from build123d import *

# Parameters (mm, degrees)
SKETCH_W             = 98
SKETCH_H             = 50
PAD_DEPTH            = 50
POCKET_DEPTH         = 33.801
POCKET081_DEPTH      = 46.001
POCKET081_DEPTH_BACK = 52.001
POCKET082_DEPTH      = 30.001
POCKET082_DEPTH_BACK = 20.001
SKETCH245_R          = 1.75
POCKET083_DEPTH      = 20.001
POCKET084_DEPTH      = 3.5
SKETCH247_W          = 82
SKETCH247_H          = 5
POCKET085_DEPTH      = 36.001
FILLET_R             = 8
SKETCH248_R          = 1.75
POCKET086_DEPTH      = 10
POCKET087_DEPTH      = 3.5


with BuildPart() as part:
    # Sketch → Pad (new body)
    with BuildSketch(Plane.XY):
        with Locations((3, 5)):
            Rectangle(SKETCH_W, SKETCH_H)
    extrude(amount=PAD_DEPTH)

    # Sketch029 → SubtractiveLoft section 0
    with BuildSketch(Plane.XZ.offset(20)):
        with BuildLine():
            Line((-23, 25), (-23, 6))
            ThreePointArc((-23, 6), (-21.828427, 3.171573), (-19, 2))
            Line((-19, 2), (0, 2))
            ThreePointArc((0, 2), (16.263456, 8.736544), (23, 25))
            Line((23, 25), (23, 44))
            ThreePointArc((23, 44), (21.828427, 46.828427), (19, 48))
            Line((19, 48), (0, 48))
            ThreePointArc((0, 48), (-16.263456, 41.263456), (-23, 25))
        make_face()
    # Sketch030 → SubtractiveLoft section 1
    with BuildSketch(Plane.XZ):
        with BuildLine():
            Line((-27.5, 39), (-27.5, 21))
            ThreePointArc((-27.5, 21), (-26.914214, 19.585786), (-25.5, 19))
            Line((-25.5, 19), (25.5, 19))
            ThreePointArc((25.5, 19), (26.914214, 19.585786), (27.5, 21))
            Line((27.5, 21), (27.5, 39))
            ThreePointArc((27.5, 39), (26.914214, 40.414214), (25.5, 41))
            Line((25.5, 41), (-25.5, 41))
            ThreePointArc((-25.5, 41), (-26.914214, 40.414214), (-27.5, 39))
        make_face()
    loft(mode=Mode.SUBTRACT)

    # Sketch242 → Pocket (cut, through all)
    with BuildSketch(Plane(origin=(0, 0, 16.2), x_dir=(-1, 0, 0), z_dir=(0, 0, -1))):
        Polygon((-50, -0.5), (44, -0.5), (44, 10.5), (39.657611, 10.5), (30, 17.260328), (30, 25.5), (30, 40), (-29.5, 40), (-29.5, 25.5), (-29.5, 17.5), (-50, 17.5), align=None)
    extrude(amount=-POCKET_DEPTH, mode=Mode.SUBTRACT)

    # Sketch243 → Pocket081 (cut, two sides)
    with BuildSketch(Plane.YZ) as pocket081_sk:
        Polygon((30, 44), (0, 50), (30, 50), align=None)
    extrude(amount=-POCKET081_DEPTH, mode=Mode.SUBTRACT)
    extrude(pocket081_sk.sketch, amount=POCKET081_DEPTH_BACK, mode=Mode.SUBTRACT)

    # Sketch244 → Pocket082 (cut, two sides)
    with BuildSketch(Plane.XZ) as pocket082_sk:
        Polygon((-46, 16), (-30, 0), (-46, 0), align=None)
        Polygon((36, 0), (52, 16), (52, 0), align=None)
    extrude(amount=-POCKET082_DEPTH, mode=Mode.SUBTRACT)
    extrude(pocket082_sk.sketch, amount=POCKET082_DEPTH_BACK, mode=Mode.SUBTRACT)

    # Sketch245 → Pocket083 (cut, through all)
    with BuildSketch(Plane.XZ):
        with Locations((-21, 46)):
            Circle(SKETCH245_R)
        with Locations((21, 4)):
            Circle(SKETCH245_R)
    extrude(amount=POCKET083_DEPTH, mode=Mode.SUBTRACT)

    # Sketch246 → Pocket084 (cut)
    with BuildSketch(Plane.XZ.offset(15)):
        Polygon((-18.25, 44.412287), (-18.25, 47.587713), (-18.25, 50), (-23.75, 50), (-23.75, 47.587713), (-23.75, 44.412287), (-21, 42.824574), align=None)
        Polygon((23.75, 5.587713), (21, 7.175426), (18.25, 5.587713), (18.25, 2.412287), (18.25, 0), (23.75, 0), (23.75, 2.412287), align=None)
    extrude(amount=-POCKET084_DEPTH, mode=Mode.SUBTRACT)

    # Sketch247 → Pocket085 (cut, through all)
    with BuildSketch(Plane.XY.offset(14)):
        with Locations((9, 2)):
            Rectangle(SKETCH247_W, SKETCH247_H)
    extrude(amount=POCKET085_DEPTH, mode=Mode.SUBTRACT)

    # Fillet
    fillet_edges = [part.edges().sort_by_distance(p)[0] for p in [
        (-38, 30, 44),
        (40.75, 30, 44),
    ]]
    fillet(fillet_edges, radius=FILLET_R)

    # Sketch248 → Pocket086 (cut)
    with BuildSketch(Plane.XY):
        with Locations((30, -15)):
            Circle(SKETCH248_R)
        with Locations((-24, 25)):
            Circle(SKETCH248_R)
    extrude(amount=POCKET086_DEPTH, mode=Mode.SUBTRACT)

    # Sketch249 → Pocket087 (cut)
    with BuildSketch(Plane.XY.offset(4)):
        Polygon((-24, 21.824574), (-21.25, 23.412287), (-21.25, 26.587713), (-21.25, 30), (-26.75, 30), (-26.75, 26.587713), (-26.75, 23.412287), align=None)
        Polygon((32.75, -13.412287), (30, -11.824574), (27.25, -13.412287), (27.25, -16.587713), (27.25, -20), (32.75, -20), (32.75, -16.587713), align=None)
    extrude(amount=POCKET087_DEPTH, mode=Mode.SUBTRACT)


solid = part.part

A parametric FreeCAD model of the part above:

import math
import FreeCAD as App
import Part
import Sketcher
from FreeCAD import Vector
Q = App.Units.Quantity


def edges_at(feature, points):
    """Names of the edges that pass closest to the given points."""
    edges = feature.Shape.Edges
    near = lambda p: min(range(len(edges)), key=lambda i: edges[i].distToShape(Part.Vertex(*p))[0])
    return sorted({f"Edge{near(p) + 1}" for p in points})


def add_polygon(sketch, points):
    """Adds a closed chain of lines whose ends are joined by coincident constraints."""
    first, n = sketch.GeometryCount, len(points)
    for a, b in zip(points, points[1:] + points[:1]):
        sketch.addGeometry(Part.LineSegment(App.Vector(*a, 0), App.Vector(*b, 0)), False)
    for i in range(n):
        sketch.addConstraint(Sketcher.Constraint("Coincident", first + i, 2, first + (i + 1) % n, 1))

doc = App.newDocument("Part")
body = doc.addObject("PartDesign::Body", "Body")

# Sketch on XY plane
sketch1 = body.newObject("Sketcher::SketchObject", "Sketch")
sketch1.AttachmentSupport = (doc.getObject("XY_Plane"), [""])
sketch1.MapMode = "FlatFace"
add_polygon(sketch1, [(-46, 30), (-46, -20), (52, -20), (52, 30)])  # lines 0-3
sketch1.addConstraint(Sketcher.Constraint("Vertical", 0))
sketch1.addConstraint(Sketcher.Constraint("Horizontal", 1))
sketch1.addConstraint(Sketcher.Constraint("Vertical", 2))
sketch1.addConstraint(Sketcher.Constraint("Horizontal", 3))
sketch1.addConstraint(Sketcher.Constraint("DistanceX", 1, 1, 1, 2, 98.0))
sketch1.addConstraint(Sketcher.Constraint("DistanceY", 0, 2, 0, 1, 50.0))
sketch1.addConstraint(Sketcher.Constraint("DistanceX", 0, 2, -1, 1, 46.0))
sketch1.addConstraint(Sketcher.Constraint("DistanceY", 0, 2, -1, 1, 20.0))
pad1 = body.newObject("PartDesign::Pad", "Pad")
pad1.Profile = sketch1
pad1.Length = 50

# Sketch on XZ plane
sketch2 = body.newObject("Sketcher::SketchObject", "Sketch001")
sketch2.AttachmentSupport = (doc.getObject("XZ_Plane"), [""])
sketch2.MapMode = "FlatFace"
sketch2.AttachmentOffset = App.Placement(Vector(0, 0, 20), App.Rotation())
sketch2.addGeometry(Part.LineSegment(Vector(-23, 25, 0), Vector(-23, 6, 0)), False)
sketch2.addGeometry(Part.ArcOfCircle(Part.Circle(Vector(-19, 6, 0), Vector(0, 0, 1), 4), math.radians(-180), math.radians(-90)), False)
sketch2.addGeometry(Part.LineSegment(Vector(-19, 2, 0), Vector(0, 2, 0)), False)
sketch2.addGeometry(Part.ArcOfCircle(Part.Circle(Vector(0, 25, 0), Vector(0, 0, 1), 23), math.radians(-90), math.radians(0)), False)
sketch2.addGeometry(Part.LineSegment(Vector(23, 25, 0), Vector(23, 44, 0)), False)
sketch2.addGeometry(Part.ArcOfCircle(Part.Circle(Vector(19, 44, 0), Vector(0, 0, 1), 4), math.radians(0), math.radians(90)), False)
sketch2.addGeometry(Part.LineSegment(Vector(19, 48, 0), Vector(0, 48, 0)), False)
sketch2.addGeometry(Part.ArcOfCircle(Part.Circle(Vector(0, 25, 0), Vector(0, 0, 1), 23), math.radians(90), math.radians(180)), False)
sketch2.addConstraint(Sketcher.Constraint("Tangent", 0, 2, 1, 1))
sketch2.addConstraint(Sketcher.Constraint("Tangent", 1, 2, 2, 1))
sketch2.addConstraint(Sketcher.Constraint("Tangent", 2, 2, 3, 1))
sketch2.addConstraint(Sketcher.Constraint("Tangent", 3, 2, 4, 1))
sketch2.addConstraint(Sketcher.Constraint("Tangent", 4, 2, 5, 1))
sketch2.addConstraint(Sketcher.Constraint("Tangent", 5, 2, 6, 1))
sketch2.addConstraint(Sketcher.Constraint("Tangent", 6, 2, 7, 1))
sketch2.addConstraint(Sketcher.Constraint("Tangent", 7, 2, 0, 1))
sketch2.addConstraint(Sketcher.Constraint("Vertical", 0))
sketch2.addConstraint(Sketcher.Constraint("Horizontal", 2))
sketch2.addConstraint(Sketcher.Constraint("Vertical", 4))
sketch2.addConstraint(Sketcher.Constraint("Horizontal", 6))
sketch2.addConstraint(Sketcher.Constraint("Coincident", 7, 3, 3, 3))
sketch2.addConstraint(Sketcher.Constraint("Equal", 1, 5))
sketch2.addConstraint(Sketcher.Constraint("Equal", 3, 7))
sketch2.addConstraint(Sketcher.Constraint("PointOnObject", 3, 3, -2))
sketch2.addConstraint(Sketcher.Constraint("Radius", 1, 4.0))
sketch2.addConstraint(Sketcher.Constraint("Radius", 3, 23.0))
sketch2.addConstraint(Sketcher.Constraint("DistanceY", -1, 1, 1, 3, 6.0))

# Sketch on XZ plane
sketch3 = body.newObject("Sketcher::SketchObject", "Sketch002")
sketch3.AttachmentSupport = (doc.getObject("XZ_Plane"), [""])
sketch3.MapMode = "FlatFace"
sketch3.addGeometry(Part.LineSegment(Vector(-27.5, 39, 0), Vector(-27.5, 21, 0)), False)
sketch3.addGeometry(Part.ArcOfCircle(Part.Circle(Vector(-25.5, 21, 0), Vector(0, 0, 1), 2), math.radians(180), math.radians(270)), False)
sketch3.addGeometry(Part.LineSegment(Vector(-25.5, 19, 0), Vector(25.5, 19, 0)), False)
sketch3.addGeometry(Part.ArcOfCircle(Part.Circle(Vector(25.5, 21, 0), Vector(0, 0, 1), 2), math.radians(-90), math.radians(0)), False)
sketch3.addGeometry(Part.LineSegment(Vector(27.5, 21, 0), Vector(27.5, 39, 0)), False)
sketch3.addGeometry(Part.ArcOfCircle(Part.Circle(Vector(25.5, 39, 0), Vector(0, 0, 1), 2), math.radians(0), math.radians(90)), False)
sketch3.addGeometry(Part.LineSegment(Vector(25.5, 41, 0), Vector(-25.5, 41, 0)), False)
sketch3.addGeometry(Part.ArcOfCircle(Part.Circle(Vector(-25.5, 39, 0), Vector(0, 0, 1), 2), math.radians(90), math.radians(180)), False)
sketch3.addConstraint(Sketcher.Constraint("Tangent", 0, 2, 1, 1))
sketch3.addConstraint(Sketcher.Constraint("Tangent", 1, 2, 2, 1))
sketch3.addConstraint(Sketcher.Constraint("Tangent", 2, 2, 3, 1))
sketch3.addConstraint(Sketcher.Constraint("Tangent", 3, 2, 4, 1))
sketch3.addConstraint(Sketcher.Constraint("Tangent", 4, 2, 5, 1))
sketch3.addConstraint(Sketcher.Constraint("Tangent", 5, 2, 6, 1))
sketch3.addConstraint(Sketcher.Constraint("Tangent", 6, 2, 7, 1))
sketch3.addConstraint(Sketcher.Constraint("Tangent", 7, 2, 0, 1))
sketch3.addConstraint(Sketcher.Constraint("Vertical", 0))
sketch3.addConstraint(Sketcher.Constraint("Horizontal", 2))
sketch3.addConstraint(Sketcher.Constraint("Vertical", 4))
sketch3.addConstraint(Sketcher.Constraint("Horizontal", 6))
sketch3.addConstraint(Sketcher.Constraint("Equal", 1, 3))
sketch3.addConstraint(Sketcher.Constraint("Equal", 3, 5))
sketch3.addConstraint(Sketcher.Constraint("Equal", 5, 7))
sketch3.addConstraint(Sketcher.Constraint("Radius", 1, 1.999999))
sketch3.addConstraint(Sketcher.Constraint("DistanceX", 2, 1, 2, 2, 51.0))
sketch3.addConstraint(Sketcher.Constraint("DistanceY", 0, 2, 0, 1, 18.0))
sketch3.addConstraint(Sketcher.Constraint("DistanceY", -1, 1, 1, 3, 20.999999))
sketch3.addConstraint(Sketcher.Constraint("DistanceX", 1, 3, -1, 1, 25.500001))

subtractiveloft = body.newObject("PartDesign::SubtractiveLoft", "SubtractiveLoft")
subtractiveloft.Profile = sketch2
subtractiveloft.Sections = [sketch3]

# Sketch on XY plane
sketch4 = body.newObject("Sketcher::SketchObject", "Sketch003")
sketch4.AttachmentSupport = (doc.getObject("XY_Plane"), [""])
sketch4.MapMode = "FlatFace"
sketch4.AttachmentOffset = App.Placement(Vector(0, 0, 16.2), App.Rotation())
add_polygon(sketch4, [(50, -0.5), (-44, -0.5), (-44, 10.5), (-39.7, 10.5), (-30, 17.3), (-30, 40), (29.5, 40), (29.5, 17.5), (50, 17.5)])  # lines 0-8
sketch4.addConstraint(Sketcher.Constraint("Horizontal", 0))
sketch4.addConstraint(Sketcher.Constraint("Vertical", 1))
sketch4.addConstraint(Sketcher.Constraint("Horizontal", 2))
sketch4.addConstraint(Sketcher.Constraint("Vertical", 4))
sketch4.addConstraint(Sketcher.Constraint("Horizontal", 5))
sketch4.addConstraint(Sketcher.Constraint("Vertical", 6))
sketch4.addConstraint(Sketcher.Constraint("Horizontal", 7))
sketch4.addConstraint(Sketcher.Constraint("Vertical", 8))
sketch4.addConstraint(Sketcher.Constraint("DistanceX", 0, 2, 0, 1, 94.0))
sketch4.addConstraint(Sketcher.Constraint("DistanceY", 1, 1, 1, 2, 11.0))
sketch4.addConstraint(Sketcher.Constraint("DistanceY", 8, 2, 8, 1, 18.0))
sketch4.addConstraint(Sketcher.Constraint("DistanceX", 5, 1, 5, 2, 59.5))
sketch4.addConstraint(Sketcher.Constraint("DistanceX", 7, 1, 7, 2, 20.5))
sketch4.addConstraint(Sketcher.Constraint("DistanceY", 6, 2, 6, 1, 22.5))
sketch4.addConstraint(Sketcher.Constraint("DistanceX", 0, 2, -1, 1, 44.0))
sketch4.addConstraint(Sketcher.Constraint("DistanceY", -1, 1, 4, 2, 40.0))
sketch4.addConstraint(Sketcher.Constraint("DistanceX", 2, 1, 2, 2, 4.342389))
sketch4.addConstraint(Sketcher.Constraint("DistanceY", 4, 1, 4, 2, 22.739672))
pocket1 = body.newObject("PartDesign::Pocket", "Pocket")
pocket1.Profile = sketch4
pocket1.Type = "ThroughAll"
pocket1.Reversed = True

# Sketch on YZ plane
sketch5 = body.newObject("Sketcher::SketchObject", "Sketch004")
sketch5.AttachmentSupport = (doc.getObject("YZ_Plane"), [""])
sketch5.MapMode = "FlatFace"
add_polygon(sketch5, [(0, 50), (30, 44), (30, 50)])  # lines 0-2
sketch5.addConstraint(Sketcher.Constraint("Vertical", 1))
sketch5.addConstraint(Sketcher.Constraint("Horizontal", 2))
sketch5.addConstraint(Sketcher.Constraint("PointOnObject", 2, 2, -2))
sketch5.addConstraint(Sketcher.Constraint("DistanceX", 2, 2, 2, 1, 30.0))
sketch5.addConstraint(Sketcher.Constraint("DistanceY", 1, 1, 1, 2, 6.0))
sketch5.addConstraint(Sketcher.Constraint("DistanceY", -1, 1, 0, 2, 44.0))
pocket2 = body.newObject("PartDesign::Pocket", "Pocket001")
pocket2.Profile = sketch5
pocket2.Type = "ThroughAll"
pocket2.Midplane = True

# Sketch on XZ plane
sketch6 = body.newObject("Sketcher::SketchObject", "Sketch005")
sketch6.AttachmentSupport = (doc.getObject("XZ_Plane"), [""])
sketch6.MapMode = "FlatFace"
add_polygon(sketch6, [(-30, 0), (-46, 16), (-46, 0)])  # lines 0-2
add_polygon(sketch6, [(52, 16), (36, 0), (52, 0)])  # lines 3-5
sketch6.addConstraint(Sketcher.Constraint("Vertical", 1))
sketch6.addConstraint(Sketcher.Constraint("Horizontal", 2))
sketch6.addConstraint(Sketcher.Constraint("Horizontal", 4))
sketch6.addConstraint(Sketcher.Constraint("Vertical", 5))
sketch6.addConstraint(Sketcher.Constraint("PointOnObject", 1, 2, -1))
sketch6.addConstraint(Sketcher.Constraint("PointOnObject", 3, 2, -1))
sketch6.addConstraint(Sketcher.Constraint("Perpendicular", 0, 3))
sketch6.addConstraint(Sketcher.Constraint("Horizontal", 0, 2, 5, 2))
sketch6.addConstraint(Sketcher.Constraint("Equal", 2, 4))
sketch6.addConstraint(Sketcher.Constraint("DistanceX", 2, 1, 2, 2, 16.0))
sketch6.addConstraint(Sketcher.Constraint("DistanceX", 0, 2, -1, 1, 46.0))
sketch6.addConstraint(Sketcher.Constraint("DistanceX", -1, 1, 3, 2, 36.0))
pocket3 = body.newObject("PartDesign::Pocket", "Pocket002")
pocket3.Profile = sketch6
pocket3.Type = "ThroughAll"
pocket3.Midplane = True

# Sketch on XZ plane
sketch7 = body.newObject("Sketcher::SketchObject", "Sketch006")
sketch7.AttachmentSupport = (doc.getObject("XZ_Plane"), [""])
sketch7.MapMode = "FlatFace"
sketch7.addGeometry(Part.Circle(Vector(-21, 46, 0), Vector(0, 0, 1), 1.8), False)
sketch7.addGeometry(Part.Circle(Vector(21, 4, 0), Vector(0, 0, 1), 1.8), False)
sketch7.addConstraint(Sketcher.Constraint("Equal", 0, 1))
sketch7.addConstraint(Sketcher.Constraint("Diameter", 0, 3.5))
sketch7.addConstraint(Sketcher.Constraint("DistanceX", 0, 3, -1, 1, 21.0))
sketch7.addConstraint(Sketcher.Constraint("DistanceY", -1, 1, 0, 3, 46.0))
sketch7.addConstraint(Sketcher.Constraint("DistanceX", -1, 1, 1, 3, 21.0))
sketch7.addConstraint(Sketcher.Constraint("DistanceY", -1, 1, 1, 3, 4.0))
pocket4 = body.newObject("PartDesign::Pocket", "Pocket003")
pocket4.Profile = sketch7
pocket4.Type = "ThroughAll"
pocket4.Reversed = True

# Sketch on XZ plane
sketch8 = body.newObject("Sketcher::SketchObject", "Sketch007")
sketch8.AttachmentSupport = (doc.getObject("XZ_Plane"), [""])
sketch8.MapMode = "FlatFace"
sketch8.AttachmentOffset = App.Placement(Vector(0, 0, 15), App.Rotation())
add_polygon(sketch8, [(-18.2, 44.4), (-18.2, 50), (-23.8, 50), (-23.8, 44.4), (-21, 42.8)])  # lines 0-4
add_polygon(sketch8, [(23.8, 5.6), (21, 7.2), (18.2, 5.6), (18.2, 0), (23.8, 0)])  # lines 5-9
sketch8.addConstraint(Sketcher.Constraint("Vertical", 0))
sketch8.addConstraint(Sketcher.Constraint("Horizontal", 1))
sketch8.addConstraint(Sketcher.Constraint("Vertical", 2))
sketch8.addConstraint(Sketcher.Constraint("Vertical", 7))
sketch8.addConstraint(Sketcher.Constraint("Horizontal", 8))
sketch8.addConstraint(Sketcher.Constraint("Vertical", 9))
sketch8.addConstraint(Sketcher.Constraint("PointOnObject", 7, 2, -1))
sketch8.addConstraint(Sketcher.Constraint("Parallel", 3, 5))
sketch8.addConstraint(Sketcher.Constraint("Parallel", 4, 6))
sketch8.addConstraint(Sketcher.Constraint("Horizontal", 2, 2, 4, 2))
sketch8.addConstraint(Sketcher.Constraint("Horizontal", 6, 2, 9, 2))
sketch8.addConstraint(Sketcher.Constraint("Equal", 1, 8))
sketch8.addConstraint(Sketcher.Constraint("Equal", 2, 7))
sketch8.addConstraint(Sketcher.Constraint("Equal", 3, 4))
sketch8.addConstraint(Sketcher.Constraint("Angle", 3, Q("-29.999996 deg")))
sketch8.addConstraint(Sketcher.Constraint("DistanceX", 1, 2, 1, 1, 5.5))
sketch8.addConstraint(Sketcher.Constraint("DistanceY", -1, 1, 0, 2, 50.0))
sketch8.addConstraint(Sketcher.Constraint("DistanceX", 3, 2, -1, 1, 21.0))
sketch8.addConstraint(Sketcher.Constraint("DistanceX", -1, 1, 5, 2, 21.0))
sketch8.addConstraint(Sketcher.Constraint("DistanceY", 0, 1, 0, 2, 5.587713))
pocket5 = body.newObject("PartDesign::Pocket", "Pocket004")
pocket5.Profile = sketch8
pocket5.Length = 3.5

# Sketch on XY plane
sketch9 = body.newObject("Sketcher::SketchObject", "Sketch008")
sketch9.AttachmentSupport = (doc.getObject("XY_Plane"), [""])
sketch9.MapMode = "FlatFace"
sketch9.AttachmentOffset = App.Placement(Vector(0, 0, 14), App.Rotation())
add_polygon(sketch9, [(-32, 4), (-32, 0), (50, 0), (50, 4)])  # lines 0-3
sketch9.addConstraint(Sketcher.Constraint("Vertical", 0))
sketch9.addConstraint(Sketcher.Constraint("Horizontal", 1))
sketch9.addConstraint(Sketcher.Constraint("Vertical", 2))
sketch9.addConstraint(Sketcher.Constraint("Horizontal", 3))
sketch9.addConstraint(Sketcher.Constraint("DistanceX", 1, 1, 1, 2, 82.0))
sketch9.addConstraint(Sketcher.Constraint("DistanceY", 0, 2, 0, 1, 5.0))
sketch9.addConstraint(Sketcher.Constraint("DistanceX", 0, 2, -1, 1, 32.0))
sketch9.addConstraint(Sketcher.Constraint("DistanceY", 0, 2, -1, 1, 0.5))
pocket6 = body.newObject("PartDesign::Pocket", "Pocket005")
pocket6.Profile = sketch9
pocket6.Type = "ThroughAll"
pocket6.Reversed = True
doc.recompute()

fillet = body.newObject("PartDesign::Fillet", "Fillet")
fillet.Base = (pocket6, edges_at(pocket6, [(-38, 30, 44), (40.75, 30, 44)]))
fillet.Radius = 8

# Sketch on XY plane
sketch10 = body.newObject("Sketcher::SketchObject", "Sketch009")
sketch10.AttachmentSupport = (doc.getObject("XY_Plane"), [""])
sketch10.MapMode = "FlatFace"
sketch10.addGeometry(Part.Circle(Vector(30, -15, 0), Vector(0, 0, 1), 1.8), False)
sketch10.addGeometry(Part.Circle(Vector(-24, 25, 0), Vector(0, 0, 1), 1.8), False)
sketch10.addConstraint(Sketcher.Constraint("Equal", 0, 1))
sketch10.addConstraint(Sketcher.Constraint("Diameter", 0, 3.5))
sketch10.addConstraint(Sketcher.Constraint("DistanceX", -1, 1, 0, 3, 30.0))
sketch10.addConstraint(Sketcher.Constraint("DistanceY", 0, 3, -1, 1, 15.0))
sketch10.addConstraint(Sketcher.Constraint("DistanceX", 1, 3, -1, 1, 24.0))
sketch10.addConstraint(Sketcher.Constraint("DistanceY", -1, 1, 1, 3, 25.0))
pocket7 = body.newObject("PartDesign::Pocket", "Pocket006")
pocket7.Profile = sketch10
pocket7.Length = 10
pocket7.Reversed = True

# Sketch on XY plane
sketch11 = body.newObject("Sketcher::SketchObject", "Sketch010")
sketch11.AttachmentSupport = (doc.getObject("XY_Plane"), [""])
sketch11.MapMode = "FlatFace"
sketch11.AttachmentOffset = App.Placement(Vector(0, 0, 4), App.Rotation())
add_polygon(sketch11, [(-24, 21.8), (-21.2, 23.4), (-21.2, 30), (-26.8, 30), (-26.8, 23.4)])  # lines 0-4
add_polygon(sketch11, [(32.8, -13.4), (30, -11.8), (27.2, -13.4), (27.2, -20), (32.8, -20)])  # lines 5-9
sketch11.addConstraint(Sketcher.Constraint("Vertical", 1))
sketch11.addConstraint(Sketcher.Constraint("Horizontal", 2))
sketch11.addConstraint(Sketcher.Constraint("Vertical", 3))
sketch11.addConstraint(Sketcher.Constraint("Vertical", 7))
sketch11.addConstraint(Sketcher.Constraint("Horizontal", 8))
sketch11.addConstraint(Sketcher.Constraint("Vertical", 9))
sketch11.addConstraint(Sketcher.Constraint("Parallel", 4, 5))
sketch11.addConstraint(Sketcher.Constraint("Parallel", 0, 6))
sketch11.addConstraint(Sketcher.Constraint("Horizontal", 0, 2, 3, 2))
sketch11.addConstraint(Sketcher.Constraint("Horizontal", 6, 2, 9, 2))
sketch11.addConstraint(Sketcher.Constraint("Equal", 2, 8))
sketch11.addConstraint(Sketcher.Constraint("Equal", 3, 7))
sketch11.addConstraint(Sketcher.Constraint("Equal", 0, 4))
sketch11.addConstraint(Sketcher.Constraint("Angle", 0, Q("29.999996 deg")))
sketch11.addConstraint(Sketcher.Constraint("DistanceX", 2, 2, 2, 1, 5.5))
sketch11.addConstraint(Sketcher.Constraint("DistanceY", -1, 1, 1, 2, 30.0))
sketch11.addConstraint(Sketcher.Constraint("DistanceX", 4, 2, -1, 1, 24.0))
sketch11.addConstraint(Sketcher.Constraint("DistanceX", -1, 1, 5, 2, 30.0))
sketch11.addConstraint(Sketcher.Constraint("DistanceY", 7, 2, -1, 1, 20.0))
sketch11.addConstraint(Sketcher.Constraint("DistanceY", 1, 1, 1, 2, 6.587713))
pocket8 = body.newObject("PartDesign::Pocket", "Pocket007")
pocket8.Profile = sketch11
pocket8.Length = 3.5
pocket8.Reversed = True

doc.recompute()
